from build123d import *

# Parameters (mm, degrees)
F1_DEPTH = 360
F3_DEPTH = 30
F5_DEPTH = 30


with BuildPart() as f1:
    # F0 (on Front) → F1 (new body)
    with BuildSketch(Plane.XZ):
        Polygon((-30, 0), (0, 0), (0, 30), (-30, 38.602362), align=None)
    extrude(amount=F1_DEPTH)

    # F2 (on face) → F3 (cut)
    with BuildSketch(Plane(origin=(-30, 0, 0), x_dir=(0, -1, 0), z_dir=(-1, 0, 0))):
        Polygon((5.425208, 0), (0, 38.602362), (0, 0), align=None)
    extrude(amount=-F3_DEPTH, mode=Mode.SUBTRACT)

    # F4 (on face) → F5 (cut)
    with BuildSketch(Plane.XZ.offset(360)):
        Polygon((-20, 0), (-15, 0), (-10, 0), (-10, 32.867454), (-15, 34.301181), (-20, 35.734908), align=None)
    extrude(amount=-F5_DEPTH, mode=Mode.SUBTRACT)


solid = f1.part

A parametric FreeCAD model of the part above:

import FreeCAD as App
import Part
import Sketcher

V = App.Vector
Q = App.Units.Quantity


def add_polygon(sketch, points):
    """Adds a closed chain of lines whose ends are joined by coincident constraints."""
    first, n = sketch.GeometryCount, len(points)
    for a, b in zip(points, points[1:] + points[:1]):
        sketch.addGeometry(Part.LineSegment(App.Vector(*a, 0), App.Vector(*b, 0)), False)
    for i in range(n):
        sketch.addConstraint(Sketcher.Constraint("Coincident", first + i, 2, first + (i + 1) % n, 1))

doc = App.newDocument("Part")
params = doc.addObject("Spreadsheet::Sheet", "Params")
for row, (alias, value) in enumerate([
    ("sketch1_width", "30 mm"),
    ("pad1_length", "360 mm"),
    ("pocket1_length", "30 mm"),
    ("sketch3_width", "10 mm"),
    ("pocket2_length", "30 mm"),
], start=1):
    params.set(f"A{row}", alias)
    params.set(f"B{row}", "=" + value)
    params.setAlias(f"B{row}", alias)

body = doc.addObject("PartDesign::Body", "Body")

sketch1 = body.newObject("Sketcher::SketchObject", "Sketch")
sketch1.AttachmentSupport = (doc.getObject("XZ_Plane"), [""])
sketch1.MapMode = "FlatFace"
add_polygon(sketch1, [(-30, 0), (0, 0), (0, 30), (-30, 39)])
sketch1.addConstraint(Sketcher.Constraint("Horizontal", 0))
sketch1.addConstraint(Sketcher.Constraint("Vertical", 1))
sketch1.addConstraint(Sketcher.Constraint("Vertical", 3))
sketch1.addConstraint(Sketcher.Constraint("Coincident", 0, 2, -1, 1))
sketch1.addConstraint(Sketcher.Constraint("Equal", 0, 1))
sketch1.addConstraint(Sketcher.Constraint("DistanceX", 0, 1, 0, 2, 30.0))
sketch1.addConstraint(Sketcher.Constraint("Angle", 2, Q("163.999999 deg")))
sketch1.setExpression("Constraints[9]", "Params.sketch1_width")
pad1 = body.newObject("PartDesign::Pad", "Pad")
pad1.Profile = sketch1
pad1.setExpression("Length", "Params.pad1_length")

sketch2 = body.newObject("Sketcher::SketchObject", "Sketch001")
sketch2.AttachmentSupport = (doc.getObject("YZ_Plane"), [""])
sketch2.MapMode = "FlatFace"
sketch2.AttachmentOffset = App.Placement(V(0, 0, -30), App.Rotation())
add_polygon(sketch2, [(-5, 0), (0, 39), (0, 0)])
sketch2.addConstraint(Sketcher.Constraint("Vertical", 1))
sketch2.addConstraint(Sketcher.Constraint("Horizontal", 2))
sketch2.addConstraint(Sketcher.Constraint("Coincident", 1, 2, -1, 1))
sketch2.addConstraint(Sketcher.Constraint("Angle", 0, Q("82 deg")))
sketch2.addConstraint(Sketcher.Constraint("Distance", 0, 38.981729))
pocket1 = body.newObject("PartDesign::Pocket", "Pocket")
pocket1.Profile = sketch2
pocket1.setExpression("Length", "Params.pocket1_length")
pocket1.Reversed = True

sketch3 = body.newObject("Sketcher::SketchObject", "Sketch002")
sketch3.AttachmentSupport = (doc.getObject("XZ_Plane"), [""])
sketch3.MapMode = "FlatFace"
sketch3.AttachmentOffset = App.Placement(V(0, 0, 360), App.Rotation())
add_polygon(sketch3, [(-20, 0), (-10, 0), (-10, 33), (-20, 36)])
sketch3.addConstraint(Sketcher.Constraint("Horizontal", 0))
sketch3.addConstraint(Sketcher.Constraint("Vertical", 1))
sketch3.addConstraint(Sketcher.Constraint("Vertical", 3))
sketch3.addConstraint(Sketcher.Constraint("PointOnObject", 0, 2, -1))
sketch3.addConstraint(Sketcher.Constraint("DistanceX", 0, 1, 0, 2, 10.0))
sketch3.addConstraint(Sketcher.Constraint("Angle", 2, Q("163.999999 deg")))
sketch3.addConstraint(Sketcher.Constraint("DistanceX", 0, 2, -1, 1, 10.0))
sketch3.addConstraint(Sketcher.Constraint("DistanceY", 1, 1, 1, 2, 32.867454))
sketch3.setExpression("Constraints[8]", "Params.sketch3_width")
pocket2 = body.newObject("PartDesign::Pocket", "Pocket001")
pocket2.Profile = sketch3
pocket2.setExpression("Length", "Params.pocket2_length")

doc.recompute()
